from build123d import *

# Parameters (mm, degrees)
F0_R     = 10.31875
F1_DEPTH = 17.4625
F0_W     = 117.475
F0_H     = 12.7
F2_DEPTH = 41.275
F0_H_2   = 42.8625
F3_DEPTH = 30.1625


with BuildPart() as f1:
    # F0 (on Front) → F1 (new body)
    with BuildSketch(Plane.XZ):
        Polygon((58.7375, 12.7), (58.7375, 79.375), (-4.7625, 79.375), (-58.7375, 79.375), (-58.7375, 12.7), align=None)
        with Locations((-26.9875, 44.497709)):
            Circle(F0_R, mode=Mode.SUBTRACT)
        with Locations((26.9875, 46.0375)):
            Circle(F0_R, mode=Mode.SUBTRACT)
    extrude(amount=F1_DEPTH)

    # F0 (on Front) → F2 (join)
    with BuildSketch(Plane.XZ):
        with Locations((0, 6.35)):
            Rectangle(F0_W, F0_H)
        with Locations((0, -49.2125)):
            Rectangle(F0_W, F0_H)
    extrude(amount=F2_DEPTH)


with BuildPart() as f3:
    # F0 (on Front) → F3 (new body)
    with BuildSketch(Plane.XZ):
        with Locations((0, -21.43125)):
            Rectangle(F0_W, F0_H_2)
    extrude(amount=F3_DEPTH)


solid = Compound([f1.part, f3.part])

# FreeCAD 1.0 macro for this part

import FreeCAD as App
import Part
import Sketcher

V = App.Vector
Q = App.Units.Quantity


def add_polygon(sketch, points):
    """Adds a closed chain of lines whose ends are joined by coincident constraints."""
    first, n = sketch.GeometryCount, len(points)
    for a, b in zip(points, points[1:] + points[:1]):
        sketch.addGeometry(Part.LineSegment(App.Vector(*a, 0), App.Vector(*b, 0)), False)
    for i in range(n):
        sketch.addConstraint(Sketcher.Constraint("Coincident", first + i, 2, first + (i + 1) % n, 1))

doc = App.newDocument("Part")
body = doc.addObject("PartDesign::Body", "Body")
body.AllowCompound = True

# Sketch on XZ plane
sketch1 = body.newObject("Sketcher::SketchObject", "Sketch")
sketch1.AttachmentSupport = (doc.getObject("XZ_Plane"), [""])
sketch1.MapMode = "FlatFace"
add_polygon(sketch1, [(59, 13), (59, 79), (-59, 79), (-59, 13)])  # lines 0-3
sketch1.addGeometry(Part.Circle(V(-27, 44, 0), V(0, 0, 1), 10), False)  # 4
sketch1.addGeometry(Part.Circle(V(27, 46, 0), V(0, 0, 1), 10), False)  # 5
sketch1.addConstraint(Sketcher.Constraint("Vertical", 0))
sketch1.addConstraint(Sketcher.Constraint("Horizontal", 1))
sketch1.addConstraint(Sketcher.Constraint("Vertical", 2))
sketch1.addConstraint(Sketcher.Constraint("Horizontal", 3))
sketch1.addConstraint(Sketcher.Constraint("Equal", 4, 5))
sketch1.addConstraint(Sketcher.Constraint("Diameter", 4, Q("0.8125 in")))
sketch1.addConstraint(Sketcher.Constraint("DistanceY", -1, 1, 2, 2, Q("0.5 in")))
sketch1.addConstraint(Sketcher.Constraint("DistanceX", 1, 2, 1, 1, Q("4.625 in")))
sketch1.addConstraint(Sketcher.Constraint("DistanceY", 0, 1, 0, 2, Q("2.625 in")))
sketch1.addConstraint(Sketcher.Constraint("DistanceX", 5, 3, 0, 2, Q("1.25 in")))
sketch1.addConstraint(Sketcher.Constraint("DistanceX", 1, 2, 4, 3, Q("1.25 in")))
sketch1.addConstraint(Sketcher.Constraint("DistanceX", 4, 3, -1, 1, Q("1.0625 in")))
sketch1.addConstraint(Sketcher.Constraint("DistanceY", -1, 1, 5, 3, Q("1.8125 in")))
sketch1.addConstraint(Sketcher.Constraint("DistanceY", -1, 1, 4, 3, Q("44.497709 mm")))
pad1 = body.newObject("PartDesign::Pad", "Pad")
pad1.Profile = sketch1
pad1.Length = Q("0.6875 in")

# Sketch on XZ plane
sketch2 = body.newObject("Sketcher::SketchObject", "Sketch001")
sketch2.AttachmentSupport = (doc.getObject("XZ_Plane"), [""])
sketch2.MapMode = "FlatFace"
add_polygon(sketch2, [(-59, 13), (-59, 0), (59, 0), (59, 13)])  # lines 0-3
add_polygon(sketch2, [(-59, -43), (-59, -56), (59, -56), (59, -43)])  # lines 4-7
sketch2.addConstraint(Sketcher.Constraint("Vertical", 0))
sketch2.addConstraint(Sketcher.Constraint("Horizontal", 1))
sketch2.addConstraint(Sketcher.Constraint("Vertical", 2))
sketch2.addConstraint(Sketcher.Constraint("Horizontal", 3))
sketch2.addConstraint(Sketcher.Constraint("Vertical", 4))
sketch2.addConstraint(Sketcher.Constraint("Horizontal", 5))
sketch2.addConstraint(Sketcher.Constraint("Vertical", 6))
sketch2.addConstraint(Sketcher.Constraint("Horizontal", 7))
sketch2.addConstraint(Sketcher.Constraint("Symmetric", 0, 2, 1, 2, -1, 1))
sketch2.addConstraint(Sketcher.Constraint("Vertical", 3, 2, 4, 2))
sketch2.addConstraint(Sketcher.Constraint("Vertical", 2, 2, 5, 2))
sketch2.addConstraint(Sketcher.Constraint("Equal", 2, 4))
sketch2.addConstraint(Sketcher.Constraint("DistanceY", 0, 2, 0, 1, Q("0.5 in")))
sketch2.addConstraint(Sketcher.Constraint("DistanceX", 1, 1, 1, 2, Q("4.625 in")))
sketch2.addConstraint(Sketcher.Constraint("DistanceY", 4, 2, -1, 1, Q("2.1875 in")))
pad2 = body.newObject("PartDesign::Pad", "Pad001")
pad2.Profile = sketch2
pad2.Length = Q("1.625 in")
body2 = doc.addObject("PartDesign::Body", "Body001")

# Sketch on XZ plane
sketch3 = body2.newObject("Sketcher::SketchObject", "Sketch002")
sketch3.AttachmentSupport = (doc.getObject("XZ_Plane001"), [""])
sketch3.MapMode = "FlatFace"
add_polygon(sketch3, [(-59, 0), (-59, -43), (59, -43), (59, 0)])  # lines 0-3
sketch3.addConstraint(Sketcher.Constraint("Vertical", 0))
sketch3.addConstraint(Sketcher.Constraint("Horizontal", 1))
sketch3.addConstraint(Sketcher.Constraint("Vertical", 2))
sketch3.addConstraint(Sketcher.Constraint("Horizontal", 3))
sketch3.addConstraint(Sketcher.Constraint("Symmetric", 2, 2, 3, 2, -1, 1))
sketch3.addConstraint(Sketcher.Constraint("DistanceX", 1, 1, 1, 2, Q("4.625 in")))
sketch3.addConstraint(Sketcher.Constraint("DistanceY", 0, 2, 0, 1, Q("1.6875 in")))
pad3 = body2.newObject("PartDesign::Pad", "Pad002")
pad3.Profile = sketch3
pad3.Length = Q("1.1875 in")

doc.recompute()
